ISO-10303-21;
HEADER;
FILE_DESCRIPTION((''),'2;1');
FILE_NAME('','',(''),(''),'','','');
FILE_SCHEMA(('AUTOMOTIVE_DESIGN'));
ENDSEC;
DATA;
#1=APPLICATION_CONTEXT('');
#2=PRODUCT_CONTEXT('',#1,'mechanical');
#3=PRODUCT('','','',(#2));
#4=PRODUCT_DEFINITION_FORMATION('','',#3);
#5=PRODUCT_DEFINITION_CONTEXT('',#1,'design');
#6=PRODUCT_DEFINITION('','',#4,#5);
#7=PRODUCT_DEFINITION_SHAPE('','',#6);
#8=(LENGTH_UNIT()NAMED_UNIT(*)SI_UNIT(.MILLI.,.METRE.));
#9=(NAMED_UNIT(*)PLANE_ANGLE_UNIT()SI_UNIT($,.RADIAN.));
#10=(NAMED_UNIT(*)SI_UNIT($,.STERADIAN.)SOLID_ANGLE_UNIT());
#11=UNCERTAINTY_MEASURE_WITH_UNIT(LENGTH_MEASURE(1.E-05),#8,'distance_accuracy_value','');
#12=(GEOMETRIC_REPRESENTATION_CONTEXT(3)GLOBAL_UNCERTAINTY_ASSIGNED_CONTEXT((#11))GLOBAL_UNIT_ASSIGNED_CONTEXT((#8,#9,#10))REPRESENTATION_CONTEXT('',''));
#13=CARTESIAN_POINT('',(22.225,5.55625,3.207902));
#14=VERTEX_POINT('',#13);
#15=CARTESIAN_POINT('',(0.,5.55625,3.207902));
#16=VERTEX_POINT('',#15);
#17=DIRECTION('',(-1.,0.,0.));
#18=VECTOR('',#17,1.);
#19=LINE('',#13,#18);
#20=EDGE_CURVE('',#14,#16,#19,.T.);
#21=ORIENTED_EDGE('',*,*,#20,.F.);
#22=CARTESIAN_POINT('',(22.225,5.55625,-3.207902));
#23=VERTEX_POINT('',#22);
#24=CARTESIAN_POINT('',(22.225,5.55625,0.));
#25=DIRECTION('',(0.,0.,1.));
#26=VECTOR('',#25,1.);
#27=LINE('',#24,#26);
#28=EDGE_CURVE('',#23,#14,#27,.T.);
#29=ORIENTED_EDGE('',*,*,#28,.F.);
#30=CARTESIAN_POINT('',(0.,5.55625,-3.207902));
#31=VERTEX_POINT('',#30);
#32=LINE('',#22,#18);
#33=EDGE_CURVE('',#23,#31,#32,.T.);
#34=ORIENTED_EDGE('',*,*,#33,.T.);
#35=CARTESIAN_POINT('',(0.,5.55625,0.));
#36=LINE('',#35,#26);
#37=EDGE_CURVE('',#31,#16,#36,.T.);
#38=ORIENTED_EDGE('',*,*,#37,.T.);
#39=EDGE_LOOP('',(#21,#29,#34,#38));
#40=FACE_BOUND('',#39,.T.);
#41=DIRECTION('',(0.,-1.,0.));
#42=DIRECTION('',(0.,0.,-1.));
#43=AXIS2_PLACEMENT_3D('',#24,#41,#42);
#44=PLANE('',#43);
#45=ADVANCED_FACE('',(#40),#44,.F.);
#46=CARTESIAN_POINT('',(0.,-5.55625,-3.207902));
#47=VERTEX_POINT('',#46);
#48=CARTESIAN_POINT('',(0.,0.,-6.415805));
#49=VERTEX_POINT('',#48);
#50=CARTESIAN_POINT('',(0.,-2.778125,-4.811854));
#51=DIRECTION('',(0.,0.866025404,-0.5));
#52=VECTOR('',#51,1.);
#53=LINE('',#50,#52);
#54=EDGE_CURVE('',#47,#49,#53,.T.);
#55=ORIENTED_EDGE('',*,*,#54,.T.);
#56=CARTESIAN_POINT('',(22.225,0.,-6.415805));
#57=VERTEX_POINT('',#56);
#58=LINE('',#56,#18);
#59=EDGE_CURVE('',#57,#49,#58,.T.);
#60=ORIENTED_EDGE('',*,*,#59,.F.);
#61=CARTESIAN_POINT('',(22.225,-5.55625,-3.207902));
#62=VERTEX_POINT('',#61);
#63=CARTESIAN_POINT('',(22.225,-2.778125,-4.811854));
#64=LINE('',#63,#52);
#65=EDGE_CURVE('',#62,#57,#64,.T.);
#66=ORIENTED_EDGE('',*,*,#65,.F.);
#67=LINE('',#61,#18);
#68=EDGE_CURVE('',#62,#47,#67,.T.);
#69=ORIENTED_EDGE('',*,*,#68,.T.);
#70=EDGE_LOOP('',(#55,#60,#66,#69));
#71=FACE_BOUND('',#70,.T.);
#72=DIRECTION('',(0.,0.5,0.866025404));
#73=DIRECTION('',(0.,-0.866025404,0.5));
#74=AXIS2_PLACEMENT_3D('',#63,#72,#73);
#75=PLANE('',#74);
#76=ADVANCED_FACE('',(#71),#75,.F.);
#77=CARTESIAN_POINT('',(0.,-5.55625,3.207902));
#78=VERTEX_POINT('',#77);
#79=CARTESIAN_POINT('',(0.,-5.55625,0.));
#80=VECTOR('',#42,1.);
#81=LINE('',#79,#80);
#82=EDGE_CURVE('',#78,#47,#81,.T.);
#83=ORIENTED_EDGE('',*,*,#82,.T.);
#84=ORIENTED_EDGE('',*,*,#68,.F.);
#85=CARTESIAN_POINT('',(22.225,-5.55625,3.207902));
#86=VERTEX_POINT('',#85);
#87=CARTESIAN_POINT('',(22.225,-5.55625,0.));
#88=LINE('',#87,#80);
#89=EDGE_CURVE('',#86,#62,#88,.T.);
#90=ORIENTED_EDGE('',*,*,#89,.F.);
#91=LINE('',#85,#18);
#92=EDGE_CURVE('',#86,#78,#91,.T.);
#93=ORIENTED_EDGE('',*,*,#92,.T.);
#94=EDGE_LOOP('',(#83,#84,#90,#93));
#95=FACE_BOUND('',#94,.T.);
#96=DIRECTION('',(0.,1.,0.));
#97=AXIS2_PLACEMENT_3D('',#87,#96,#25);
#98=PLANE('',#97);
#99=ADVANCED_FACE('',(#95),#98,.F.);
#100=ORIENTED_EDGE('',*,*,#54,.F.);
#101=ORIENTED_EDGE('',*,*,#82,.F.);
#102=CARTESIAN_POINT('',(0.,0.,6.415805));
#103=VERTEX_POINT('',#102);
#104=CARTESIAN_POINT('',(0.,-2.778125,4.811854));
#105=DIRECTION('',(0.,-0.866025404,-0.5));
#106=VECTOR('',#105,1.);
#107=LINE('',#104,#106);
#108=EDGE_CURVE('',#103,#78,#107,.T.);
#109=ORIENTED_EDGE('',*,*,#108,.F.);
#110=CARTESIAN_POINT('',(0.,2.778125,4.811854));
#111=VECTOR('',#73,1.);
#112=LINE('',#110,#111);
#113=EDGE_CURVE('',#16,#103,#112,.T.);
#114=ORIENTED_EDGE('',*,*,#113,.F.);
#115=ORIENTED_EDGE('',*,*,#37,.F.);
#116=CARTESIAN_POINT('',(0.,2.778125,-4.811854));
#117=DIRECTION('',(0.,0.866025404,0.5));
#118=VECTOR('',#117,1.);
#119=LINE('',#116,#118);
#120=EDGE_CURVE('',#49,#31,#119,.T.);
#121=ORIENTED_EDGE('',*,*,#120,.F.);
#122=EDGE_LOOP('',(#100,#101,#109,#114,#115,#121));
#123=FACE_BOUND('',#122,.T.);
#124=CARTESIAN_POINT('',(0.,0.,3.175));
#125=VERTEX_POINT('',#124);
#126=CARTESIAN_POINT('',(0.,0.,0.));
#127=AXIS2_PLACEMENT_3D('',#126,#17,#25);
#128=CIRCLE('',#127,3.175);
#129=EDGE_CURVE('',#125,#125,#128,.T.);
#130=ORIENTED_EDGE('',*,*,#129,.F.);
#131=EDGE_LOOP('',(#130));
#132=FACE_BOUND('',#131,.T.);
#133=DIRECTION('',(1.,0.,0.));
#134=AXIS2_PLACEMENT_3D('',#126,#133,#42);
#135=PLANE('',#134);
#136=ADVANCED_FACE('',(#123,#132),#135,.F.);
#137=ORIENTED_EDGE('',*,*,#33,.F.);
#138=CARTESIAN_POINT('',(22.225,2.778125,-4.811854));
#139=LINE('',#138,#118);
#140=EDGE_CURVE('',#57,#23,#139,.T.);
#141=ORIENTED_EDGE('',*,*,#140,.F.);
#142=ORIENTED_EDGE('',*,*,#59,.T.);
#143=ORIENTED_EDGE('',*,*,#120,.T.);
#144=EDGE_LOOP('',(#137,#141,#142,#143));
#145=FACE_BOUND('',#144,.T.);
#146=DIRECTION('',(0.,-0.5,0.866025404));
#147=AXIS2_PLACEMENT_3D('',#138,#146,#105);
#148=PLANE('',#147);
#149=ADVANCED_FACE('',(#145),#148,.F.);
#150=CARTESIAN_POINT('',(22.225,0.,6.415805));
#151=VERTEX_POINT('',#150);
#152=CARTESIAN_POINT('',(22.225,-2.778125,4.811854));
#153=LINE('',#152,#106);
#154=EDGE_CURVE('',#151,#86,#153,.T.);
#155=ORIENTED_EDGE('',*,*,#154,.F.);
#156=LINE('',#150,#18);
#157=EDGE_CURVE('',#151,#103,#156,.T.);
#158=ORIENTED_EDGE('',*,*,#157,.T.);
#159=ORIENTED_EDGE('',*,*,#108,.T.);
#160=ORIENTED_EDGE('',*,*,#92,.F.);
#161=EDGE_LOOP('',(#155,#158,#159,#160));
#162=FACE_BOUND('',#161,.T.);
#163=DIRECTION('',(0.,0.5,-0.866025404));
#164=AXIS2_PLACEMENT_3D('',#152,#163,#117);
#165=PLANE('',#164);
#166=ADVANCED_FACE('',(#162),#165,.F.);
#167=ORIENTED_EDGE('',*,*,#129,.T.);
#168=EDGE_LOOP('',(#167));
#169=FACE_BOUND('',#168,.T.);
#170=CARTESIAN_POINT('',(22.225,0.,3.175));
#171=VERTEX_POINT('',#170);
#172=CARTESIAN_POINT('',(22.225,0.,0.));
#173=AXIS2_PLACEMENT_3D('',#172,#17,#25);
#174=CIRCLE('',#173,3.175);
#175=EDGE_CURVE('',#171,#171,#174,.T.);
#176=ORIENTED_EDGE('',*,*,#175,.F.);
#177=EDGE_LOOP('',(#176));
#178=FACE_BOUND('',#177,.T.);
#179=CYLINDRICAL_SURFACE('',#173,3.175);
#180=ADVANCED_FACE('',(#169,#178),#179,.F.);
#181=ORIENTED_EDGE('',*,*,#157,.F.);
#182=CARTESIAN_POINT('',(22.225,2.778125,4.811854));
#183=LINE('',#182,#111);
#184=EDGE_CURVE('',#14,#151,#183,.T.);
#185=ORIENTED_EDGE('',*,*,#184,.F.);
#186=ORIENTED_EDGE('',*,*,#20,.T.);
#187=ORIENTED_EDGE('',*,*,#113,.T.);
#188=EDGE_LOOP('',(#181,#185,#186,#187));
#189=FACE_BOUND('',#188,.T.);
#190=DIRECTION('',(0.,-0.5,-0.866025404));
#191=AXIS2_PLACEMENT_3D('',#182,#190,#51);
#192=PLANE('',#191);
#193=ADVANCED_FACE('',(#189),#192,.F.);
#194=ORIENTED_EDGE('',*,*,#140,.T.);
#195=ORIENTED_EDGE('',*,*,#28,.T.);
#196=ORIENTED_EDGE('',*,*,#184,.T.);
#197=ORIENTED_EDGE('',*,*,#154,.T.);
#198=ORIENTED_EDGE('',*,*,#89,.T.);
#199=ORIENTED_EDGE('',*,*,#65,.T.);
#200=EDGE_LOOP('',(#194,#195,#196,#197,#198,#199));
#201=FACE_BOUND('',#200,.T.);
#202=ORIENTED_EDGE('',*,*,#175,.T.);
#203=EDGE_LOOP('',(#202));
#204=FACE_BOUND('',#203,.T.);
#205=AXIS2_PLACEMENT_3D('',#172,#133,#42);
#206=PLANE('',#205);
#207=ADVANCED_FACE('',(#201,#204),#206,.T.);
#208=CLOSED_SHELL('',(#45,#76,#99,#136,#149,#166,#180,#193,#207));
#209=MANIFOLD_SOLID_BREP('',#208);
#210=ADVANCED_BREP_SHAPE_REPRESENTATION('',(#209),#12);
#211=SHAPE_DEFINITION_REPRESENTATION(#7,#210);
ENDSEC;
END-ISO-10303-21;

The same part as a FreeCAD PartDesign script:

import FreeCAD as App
import Part
import Sketcher
from FreeCAD import Vector
Q = App.Units.Quantity

doc = App.newDocument("Part")
body = doc.addObject("PartDesign::Body", "Body")

sketch1 = body.newObject("Sketcher::SketchObject", "Sketch")
sketch1.AttachmentSupport = (doc.getObject("YZ_Plane"), [""])
sketch1.MapMode = "FlatFace"
sketch1.addGeometry(Part.LineSegment(Vector(6, 3, 0), Vector(0, 6, 0)), False)
sketch1.addGeometry(Part.LineSegment(Vector(0, 6, 0), Vector(-6, 3, 0)), False)
sketch1.addGeometry(Part.LineSegment(Vector(-6, 3, 0), Vector(-6, -3, 0)), False)
sketch1.addGeometry(Part.LineSegment(Vector(-6, -3, 0), Vector(0, -6, 0)), False)
sketch1.addGeometry(Part.LineSegment(Vector(0, -6, 0), Vector(6, -3, 0)), False)
sketch1.addGeometry(Part.LineSegment(Vector(6, -3, 0), Vector(6, 3, 0)), False)
sketch1.addConstraint(Sketcher.Constraint("Coincident", 0, 2, 1, 1))
sketch1.addConstraint(Sketcher.Constraint("Coincident", 1, 2, 2, 1))
sketch1.addConstraint(Sketcher.Constraint("Coincident", 2, 2, 3, 1))
sketch1.addConstraint(Sketcher.Constraint("Coincident", 3, 2, 4, 1))
sketch1.addConstraint(Sketcher.Constraint("Coincident", 4, 2, 5, 1))
sketch1.addConstraint(Sketcher.Constraint("Coincident", 5, 2, 0, 1))
sketch1.addConstraint(Sketcher.Constraint("Vertical", 2))
sketch1.addConstraint(Sketcher.Constraint("Vertical", 5))
sketch1.addConstraint(Sketcher.Constraint("Symmetric", 0, 2, 3, 2, -1, 1))
sketch1.addConstraint(Sketcher.Constraint("Symmetric", 1, 2, 4, 2, -1, 1))
sketch1.addConstraint(Sketcher.Constraint("PointOnObject", 0, 2, -2))
sketch1.addConstraint(Sketcher.Constraint("Parallel", 0, 3))
sketch1.addConstraint(Sketcher.Constraint("Horizontal", 2, 2, 4, 2))
sketch1.addConstraint(Sketcher.Constraint("Angle", 0, Q("150 deg")))
sketch1.addConstraint(Sketcher.Constraint("DistanceX", 1, 2, -1, 1, Q("0.21875 in")))
sketch1.addConstraint(Sketcher.Constraint("DistanceY", 2, 2, 2, 1, 6.415805))
pad1 = body.newObject("PartDesign::Pad", "Pad")
pad1.Profile = sketch1
pad1.Length = Q("0.875 in")

sketch2 = body.newObject("Sketcher::SketchObject", "Sketch001")
sketch2.AttachmentSupport = (doc.getObject("YZ_Plane"), [""])
sketch2.MapMode = "FlatFace"
sketch2.addGeometry(Part.Circle(Vector(0, 0, 0), Vector(0, 0, 1), 3.2), False)
sketch2.addConstraint(Sketcher.Constraint("Coincident", 0, 3, -1, 1))
sketch2.addConstraint(Sketcher.Constraint("Diameter", 0, Q("0.25 in")))
pocket1 = body.newObject("PartDesign::Pocket", "Pocket")
pocket1.Profile = sketch2
pocket1.Length = Q("0.875 in")
pocket1.Reversed = True

doc.recompute()
